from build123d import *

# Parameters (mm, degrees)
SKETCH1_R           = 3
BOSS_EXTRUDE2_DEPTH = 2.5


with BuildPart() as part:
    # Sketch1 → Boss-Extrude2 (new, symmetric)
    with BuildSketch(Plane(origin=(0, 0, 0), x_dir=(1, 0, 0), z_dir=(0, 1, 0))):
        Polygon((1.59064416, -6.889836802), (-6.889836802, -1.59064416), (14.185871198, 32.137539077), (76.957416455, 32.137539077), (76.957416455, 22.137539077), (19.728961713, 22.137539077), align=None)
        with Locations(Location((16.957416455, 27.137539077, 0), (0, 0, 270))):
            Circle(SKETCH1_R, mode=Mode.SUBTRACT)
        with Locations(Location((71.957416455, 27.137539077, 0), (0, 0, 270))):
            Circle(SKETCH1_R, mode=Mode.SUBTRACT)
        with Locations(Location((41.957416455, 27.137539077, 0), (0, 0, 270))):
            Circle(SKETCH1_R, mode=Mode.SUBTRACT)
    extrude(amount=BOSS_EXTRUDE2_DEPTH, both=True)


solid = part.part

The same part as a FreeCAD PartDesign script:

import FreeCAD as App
import Part
import Sketcher
from FreeCAD import Vector
Q = App.Units.Quantity

doc = App.newDocument("Part")
body = doc.addObject("PartDesign::Body", "Body")

sketch1 = body.newObject("Sketcher::SketchObject", "Sketch")
sketch1.AttachmentSupport = (doc.getObject("XZ_Plane"), [""])
sketch1.MapMode = "FlatFace"
sketch1.addGeometry([
    Part.LineSegment(Vector(-6.889837, 1.590644, 0), Vector(1.590644, 6.889837, 0)),
    Part.LineSegment(Vector(1.590644, 6.889837, 0), Vector(19.728962, -22.137539, 0)),
    Part.LineSegment(Vector(19.728962, -22.137539, 0), Vector(76.957416, -22.137539, 0)),
    Part.LineSegment(Vector(76.957416, -22.137539, 0), Vector(76.957416, -32.137539, 0)),
    Part.LineSegment(Vector(76.957416, -32.137539, 0), Vector(14.185871, -32.137539, 0)),
    Part.LineSegment(Vector(14.185871, -32.137539, 0), Vector(-6.889837, 1.590644, 0)),
    Part.Circle(Vector(71.957416, -27.137539, 0), Vector(0, 0, 1), 3),
    Part.Circle(Vector(41.957416, -27.137539, 0), Vector(0, 0, 1), 3),
    Part.Circle(Vector(16.957416, -27.137539, 0), Vector(0, 0, 1), 3),
], False)
sketch1.addConstraint([
    Sketcher.Constraint("Coincident", 0, 2, 1, 1),
    Sketcher.Constraint("Coincident", 1, 2, 2, 1),
    Sketcher.Constraint("Coincident", 2, 2, 3, 1),
    Sketcher.Constraint("Coincident", 3, 2, 4, 1),
    Sketcher.Constraint("Coincident", 4, 2, 5, 1),
    Sketcher.Constraint("Coincident", 5, 2, 0, 1),
    Sketcher.Constraint("Horizontal", 2),
    Sketcher.Constraint("Vertical", 3),
    Sketcher.Constraint("Horizontal", 4),
    Sketcher.Constraint("Equal", 6, 7),
    Sketcher.Constraint("Equal", 7, 8),
    Sketcher.Constraint("Perpendicular", 0, 1),
    Sketcher.Constraint("Parallel", 1, 5),
    Sketcher.Constraint("Horizontal", 6, 3, 7, 3),
    Sketcher.Constraint("Horizontal", 7, 3, 8, 3),
    Sketcher.Constraint("Diameter", 6, Q("6 mm")),
    Sketcher.Constraint("DistanceY", 3, 2, 3, 1, Q("10 mm")),
    Sketcher.Constraint("Angle", 0, Q("32 deg")),
    Sketcher.Constraint("Distance", 0, Q("10 mm")),
    Sketcher.Constraint("DistanceX", 7, 3, 6, 3, Q("30 mm")),
    Sketcher.Constraint("DistanceX", 8, 3, 7, 3, Q("25 mm")),
    Sketcher.Constraint("DistanceY", 8, 3, 1, 2, Q("5 mm")),
    Sketcher.Constraint("DistanceX", 6, 3, 2, 2, Q("5 mm")),
    Sketcher.Constraint("DistanceX", 5, 2, 1, 2, Q("26.618799 mm")),
    Sketcher.Constraint("DistanceX", 2, 1, 2, 2, Q("57.228455 mm")),
    Sketcher.Constraint("DistanceY", 6, 3, -1, 1, Q("27.137539 mm")),
    Sketcher.Constraint("DistanceX", -1, 1, 1, 2, Q("19.728962 mm")),
])
pad1 = body.newObject("PartDesign::Pad", "Pad")
pad1.Profile = sketch1
pad1.Length = 5
pad1.Midplane = True

doc.recompute()
